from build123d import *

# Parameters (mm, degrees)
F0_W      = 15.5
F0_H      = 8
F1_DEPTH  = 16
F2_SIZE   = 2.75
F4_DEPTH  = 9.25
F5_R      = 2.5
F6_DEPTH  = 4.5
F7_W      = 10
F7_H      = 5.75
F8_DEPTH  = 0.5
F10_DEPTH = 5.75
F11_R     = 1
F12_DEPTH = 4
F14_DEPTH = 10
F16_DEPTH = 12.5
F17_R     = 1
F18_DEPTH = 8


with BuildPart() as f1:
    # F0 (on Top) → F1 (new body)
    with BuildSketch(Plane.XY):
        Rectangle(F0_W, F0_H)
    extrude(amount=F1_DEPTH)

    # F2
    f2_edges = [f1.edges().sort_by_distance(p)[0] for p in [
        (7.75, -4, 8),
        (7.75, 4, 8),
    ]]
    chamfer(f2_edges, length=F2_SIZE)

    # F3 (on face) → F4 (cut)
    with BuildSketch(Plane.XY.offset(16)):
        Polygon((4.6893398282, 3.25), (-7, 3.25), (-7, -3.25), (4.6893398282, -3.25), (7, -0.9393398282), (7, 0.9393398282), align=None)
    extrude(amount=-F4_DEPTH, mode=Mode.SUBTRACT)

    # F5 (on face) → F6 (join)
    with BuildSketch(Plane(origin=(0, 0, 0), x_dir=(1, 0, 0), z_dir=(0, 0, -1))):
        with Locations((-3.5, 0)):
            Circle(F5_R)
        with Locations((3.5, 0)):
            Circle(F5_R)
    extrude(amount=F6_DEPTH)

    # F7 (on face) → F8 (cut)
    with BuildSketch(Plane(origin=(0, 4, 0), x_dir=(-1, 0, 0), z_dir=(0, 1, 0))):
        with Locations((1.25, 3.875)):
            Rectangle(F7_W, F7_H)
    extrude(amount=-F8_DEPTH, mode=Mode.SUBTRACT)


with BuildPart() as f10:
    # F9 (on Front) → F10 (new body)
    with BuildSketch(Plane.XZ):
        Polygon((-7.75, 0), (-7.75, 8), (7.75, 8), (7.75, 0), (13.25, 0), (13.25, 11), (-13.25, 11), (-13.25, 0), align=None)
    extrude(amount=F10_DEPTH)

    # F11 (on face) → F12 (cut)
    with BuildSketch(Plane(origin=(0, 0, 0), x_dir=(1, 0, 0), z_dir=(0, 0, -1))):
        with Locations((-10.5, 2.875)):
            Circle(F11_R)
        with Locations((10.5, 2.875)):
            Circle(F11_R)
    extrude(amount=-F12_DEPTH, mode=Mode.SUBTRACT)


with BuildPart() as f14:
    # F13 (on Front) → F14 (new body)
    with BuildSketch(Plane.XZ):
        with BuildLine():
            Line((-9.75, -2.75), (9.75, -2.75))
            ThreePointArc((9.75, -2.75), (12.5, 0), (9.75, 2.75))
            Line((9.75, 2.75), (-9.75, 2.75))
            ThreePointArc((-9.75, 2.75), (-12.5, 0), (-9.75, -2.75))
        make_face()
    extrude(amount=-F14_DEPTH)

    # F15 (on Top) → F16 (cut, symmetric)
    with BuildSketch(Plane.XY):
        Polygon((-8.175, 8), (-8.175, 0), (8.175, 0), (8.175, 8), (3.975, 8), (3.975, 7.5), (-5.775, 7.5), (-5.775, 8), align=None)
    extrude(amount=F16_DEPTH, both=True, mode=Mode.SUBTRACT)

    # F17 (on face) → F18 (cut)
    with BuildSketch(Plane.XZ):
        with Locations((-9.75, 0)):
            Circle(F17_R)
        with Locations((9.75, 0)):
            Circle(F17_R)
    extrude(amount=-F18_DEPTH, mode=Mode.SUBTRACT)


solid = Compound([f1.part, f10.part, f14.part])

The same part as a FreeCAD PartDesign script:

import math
import FreeCAD as App
import Part
import Sketcher
Q = App.Units.Quantity


def edges_at(feature, points):
    """Names of the edges that pass closest to the given points."""
    edges = feature.Shape.Edges
    near = lambda p: min(range(len(edges)), key=lambda i: edges[i].distToShape(Part.Vertex(*p))[0])
    return sorted({f"Edge{near(p) + 1}" for p in points})

doc = App.newDocument("Part")
params = doc.addObject("Spreadsheet::Sheet", "Params")
for row, (alias, value) in enumerate([
    ("sketch1_height", "8 mm"),
    ("sketch1_width", "15.5 mm"),
    ("pad1_length", "16 mm"),
    ("chamfer_size", "2.75 mm"),
    ("sketch2_height", "6.5 mm"),
    ("pocket1_length", "9.25 mm"),
    ("sketch3_diameter", "5 mm"),
    ("pad2_length", "4.5 mm"),
    ("sketch4_width", "10 mm"),
    ("sketch4_height", "5.75 mm"),
    ("pocket2_length", "0.5 mm"),
    ("sketch5_height", "8 mm"),
    ("sketch5_height2", "11 mm"),
    ("sketch5_width", "15.5 mm"),
    ("sketch5_width2", "5.5 mm"),
    ("pad3_length", "5.75 mm"),
    ("sketch6_diameter", "2 mm"),
    ("pocket3_length", "4 mm"),
    ("sketch7_radius", "2.75 mm"),
    ("sketch7_width", "19.5 mm"),
    ("pad4_length", "10 mm"),
    ("sketch8_height", "8 mm"),
    ("sketch8_width", "4.2 mm"),
    ("sketch8_width2", "2.4 mm"),
    ("sketch8_height2", "0.5 mm"),
    ("sketch8_width3", "16.35 mm"),
    ("pocket4_length", "25 mm"),
    ("sketch9_diameter", "2 mm"),
    ("pocket5_length", "8 mm"),
], start=1):
    params.set(f"A{row}", alias)
    params.set(f"B{row}", "=" + value)
    params.setAlias(f"B{row}", alias)

body = doc.addObject("PartDesign::Body", "Body")

sketch1 = body.newObject("Sketcher::SketchObject", "Sketch")
sketch1.AttachmentSupport = (doc.getObject("XY_Plane"), [""])
sketch1.MapMode = "FlatFace"
sketch1.addGeometry(Part.LineSegment(App.Vector(-7.75, 4, 0), App.Vector(-7.75, -4, 0)), False)
sketch1.addGeometry(Part.LineSegment(App.Vector(-7.75, -4, 0), App.Vector(7.75, -4, 0)), False)
sketch1.addGeometry(Part.LineSegment(App.Vector(7.75, -4, 0), App.Vector(7.75, 4, 0)), False)
sketch1.addGeometry(Part.LineSegment(App.Vector(7.75, 4, 0), App.Vector(-7.75, 4, 0)), False)
sketch1.addConstraint(Sketcher.Constraint("Coincident", 0, 2, 1, 1))
sketch1.addConstraint(Sketcher.Constraint("Coincident", 1, 2, 2, 1))
sketch1.addConstraint(Sketcher.Constraint("Coincident", 2, 2, 3, 1))
sketch1.addConstraint(Sketcher.Constraint("Coincident", 3, 2, 0, 1))
sketch1.addConstraint(Sketcher.Constraint("Vertical", 0))
sketch1.addConstraint(Sketcher.Constraint("Horizontal", 1))
sketch1.addConstraint(Sketcher.Constraint("Vertical", 2))
sketch1.addConstraint(Sketcher.Constraint("Horizontal", 3))
sketch1.addConstraint(Sketcher.Constraint("Symmetric", 0, 2, 2, 2, -1, 1))
sketch1.addConstraint(Sketcher.Constraint("DistanceY", 0, 2, 0, 1, Q("8 mm")))
sketch1.addConstraint(Sketcher.Constraint("DistanceX", 1, 1, 1, 2, Q("15.5 mm")))
sketch1.setExpression("Constraints[9]", "Params.sketch1_height")
sketch1.setExpression("Constraints[10]", "Params.sketch1_width")
pad1 = body.newObject("PartDesign::Pad", "Pad")
pad1.Profile = sketch1
pad1.setExpression("Length", "Params.pad1_length")
doc.recompute()

chamfer = body.newObject("PartDesign::Chamfer", "Chamfer")
chamfer.Base = (pad1, edges_at(pad1, [(7.75, -4, 8), (7.75, 4, 8)]))
chamfer.setExpression("Size", "Params.chamfer_size")

sketch2 = body.newObject("Sketcher::SketchObject", "Sketch001")
sketch2.AttachmentSupport = (doc.getObject("XY_Plane"), [""])
sketch2.MapMode = "FlatFace"
sketch2.AttachmentOffset = App.Placement(App.Vector(0, 0, 16), App.Rotation())
sketch2.addGeometry(Part.LineSegment(App.Vector(4.68934, 3.25, 0), App.Vector(-7, 3.25, 0)), False)
sketch2.addGeometry(Part.LineSegment(App.Vector(-7, 3.25, 0), App.Vector(-7, -3.25, 0)), False)
sketch2.addGeometry(Part.LineSegment(App.Vector(-7, -3.25, 0), App.Vector(4.68934, -3.25, 0)), False)
sketch2.addGeometry(Part.LineSegment(App.Vector(4.68934, -3.25, 0), App.Vector(7, -0.93934, 0)), False)
sketch2.addGeometry(Part.LineSegment(App.Vector(7, -0.93934, 0), App.Vector(7, 0.93934, 0)), False)
sketch2.addGeometry(Part.LineSegment(App.Vector(7, 0.93934, 0), App.Vector(4.68934, 3.25, 0)), False)
sketch2.addConstraint(Sketcher.Constraint("Coincident", 0, 2, 1, 1))
sketch2.addConstraint(Sketcher.Constraint("Coincident", 1, 2, 2, 1))
sketch2.addConstraint(Sketcher.Constraint("Coincident", 2, 2, 3, 1))
sketch2.addConstraint(Sketcher.Constraint("Coincident", 3, 2, 4, 1))
sketch2.addConstraint(Sketcher.Constraint("Coincident", 4, 2, 5, 1))
sketch2.addConstraint(Sketcher.Constraint("Coincident", 5, 2, 0, 1))
sketch2.addConstraint(Sketcher.Constraint("Horizontal", 0))
sketch2.addConstraint(Sketcher.Constraint("Vertical", 1))
sketch2.addConstraint(Sketcher.Constraint("Horizontal", 2))
sketch2.addConstraint(Sketcher.Constraint("Vertical", 4))
sketch2.addConstraint(Sketcher.Constraint("Symmetric", 2, 2, 5, 2, -1))
sketch2.addConstraint(Sketcher.Constraint("Perpendicular", 3, 5))
sketch2.addConstraint(Sketcher.Constraint("Equal", 3, 5))
sketch2.addConstraint(Sketcher.Constraint("DistanceY", 1, 2, 1, 1, Q("6.5 mm")))
sketch2.addConstraint(Sketcher.Constraint("DistanceX", 0, 2, -1, 1, Q("7 mm")))
sketch2.addConstraint(Sketcher.Constraint("DistanceX", -1, 1, 3, 2, Q("7 mm")))
sketch2.addConstraint(Sketcher.Constraint("DistanceX", 0, 2, 0, 1, Q("11.68934 mm")))
sketch2.setExpression("Constraints[13]", "Params.sketch2_height")
pocket1 = body.newObject("PartDesign::Pocket", "Pocket")
pocket1.Profile = sketch2
pocket1.setExpression("Length", "Params.pocket1_length")

sketch3 = body.newObject("Sketcher::SketchObject", "Sketch002")
sketch3.AttachmentSupport = (doc.getObject("XY_Plane"), [""])
sketch3.MapMode = "FlatFace"
sketch3.addGeometry(Part.Circle(App.Vector(-3.5, 0, 0), App.Vector(0, 0, 1), 2.5), False)
sketch3.addGeometry(Part.Circle(App.Vector(3.5, 0, 0), App.Vector(0, 0, 1), 2.5), False)
sketch3.addConstraint(Sketcher.Constraint("Equal", 0, 1))
sketch3.addConstraint(Sketcher.Constraint("Symmetric", 0, 3, 1, 3, -1, 1))
sketch3.addConstraint(Sketcher.Constraint("PointOnObject", 0, 3, -1))
sketch3.addConstraint(Sketcher.Constraint("Diameter", 0, Q("5 mm")))
sketch3.addConstraint(Sketcher.Constraint("DistanceX", 0, 3, 1, 3, Q("7 mm")))
sketch3.setExpression("Constraints[3]", "Params.sketch3_diameter")
pad2 = body.newObject("PartDesign::Pad", "Pad001")
pad2.Profile = sketch3
pad2.setExpression("Length", "Params.pad2_length")
pad2.Reversed = True

sketch4 = body.newObject("Sketcher::SketchObject", "Sketch003")
sketch4.AttachmentSupport = (doc.getObject("XZ_Plane"), [""])
sketch4.MapMode = "FlatFace"
sketch4.AttachmentOffset = App.Placement(App.Vector(0, 0, -4), App.Rotation())
sketch4.addGeometry(Part.LineSegment(App.Vector(3.75, 6.75, 0), App.Vector(3.75, 1, 0)), False)
sketch4.addGeometry(Part.LineSegment(App.Vector(3.75, 1, 0), App.Vector(-6.25, 1, 0)), False)
sketch4.addGeometry(Part.LineSegment(App.Vector(-6.25, 1, 0), App.Vector(-6.25, 6.75, 0)), False)
sketch4.addGeometry(Part.LineSegment(App.Vector(-6.25, 6.75, 0), App.Vector(3.75, 6.75, 0)), False)
sketch4.addConstraint(Sketcher.Constraint("Coincident", 0, 2, 1, 1))
sketch4.addConstraint(Sketcher.Constraint("Coincident", 1, 2, 2, 1))
sketch4.addConstraint(Sketcher.Constraint("Coincident", 2, 2, 3, 1))
sketch4.addConstraint(Sketcher.Constraint("Coincident", 3, 2, 0, 1))
sketch4.addConstraint(Sketcher.Constraint("Vertical", 0))
sketch4.addConstraint(Sketcher.Constraint("Horizontal", 1))
sketch4.addConstraint(Sketcher.Constraint("Vertical", 2))
sketch4.addConstraint(Sketcher.Constraint("Horizontal", 3))
sketch4.addConstraint(Sketcher.Constraint("DistanceX", 1, 2, 1, 1, Q("10 mm")))
sketch4.addConstraint(Sketcher.Constraint("DistanceY", -1, 1, 0, 2, Q("1 mm")))
sketch4.addConstraint(Sketcher.Constraint("DistanceY", 0, 2, 0, 1, Q("5.75 mm")))
sketch4.addConstraint(Sketcher.Constraint("DistanceX", -1, 1, 0, 2, Q("3.75 mm")))
sketch4.setExpression("Constraints[8]", "Params.sketch4_width")
sketch4.setExpression("Constraints[10]", "Params.sketch4_height")
pocket2 = body.newObject("PartDesign::Pocket", "Pocket001")
pocket2.Profile = sketch4
pocket2.setExpression("Length", "Params.pocket2_length")
pocket2.Reversed = True
body2 = doc.addObject("PartDesign::Body", "Body001")

sketch5 = body2.newObject("Sketcher::SketchObject", "Sketch004")
sketch5.AttachmentSupport = (doc.getObject("XZ_Plane001"), [""])
sketch5.MapMode = "FlatFace"
sketch5.addGeometry(Part.LineSegment(App.Vector(-7.75, 0, 0), App.Vector(-7.75, 8, 0)), False)
sketch5.addGeometry(Part.LineSegment(App.Vector(-7.75, 8, 0), App.Vector(7.75, 8, 0)), False)
sketch5.addGeometry(Part.LineSegment(App.Vector(7.75, 8, 0), App.Vector(7.75, 0, 0)), False)
sketch5.addGeometry(Part.LineSegment(App.Vector(7.75, 0, 0), App.Vector(13.25, 0, 0)), False)
sketch5.addGeometry(Part.LineSegment(App.Vector(13.25, 0, 0), App.Vector(13.25, 11, 0)), False)
sketch5.addGeometry(Part.LineSegment(App.Vector(13.25, 11, 0), App.Vector(-13.25, 11, 0)), False)
sketch5.addGeometry(Part.LineSegment(App.Vector(-13.25, 11, 0), App.Vector(-13.25, 0, 0)), False)
sketch5.addGeometry(Part.LineSegment(App.Vector(-13.25, 0, 0), App.Vector(-7.75, 0, 0)), False)
sketch5.addConstraint(Sketcher.Constraint("Coincident", 0, 2, 1, 1))
sketch5.addConstraint(Sketcher.Constraint("Coincident", 1, 2, 2, 1))
sketch5.addConstraint(Sketcher.Constraint("Coincident", 2, 2, 3, 1))
sketch5.addConstraint(Sketcher.Constraint("Coincident", 3, 2, 4, 1))
sketch5.addConstraint(Sketcher.Constraint("Coincident", 4, 2, 5, 1))
sketch5.addConstraint(Sketcher.Constraint("Coincident", 5, 2, 6, 1))
sketch5.addConstraint(Sketcher.Constraint("Coincident", 6, 2, 7, 1))
sketch5.addConstraint(Sketcher.Constraint("Coincident", 7, 2, 0, 1))
sketch5.addConstraint(Sketcher.Constraint("Vertical", 0))
sketch5.addConstraint(Sketcher.Constraint("Horizontal", 1))
sketch5.addConstraint(Sketcher.Constraint("Vertical", 2))
sketch5.addConstraint(Sketcher.Constraint("Horizontal", 3))
sketch5.addConstraint(Sketcher.Constraint("Vertical", 4))
sketch5.addConstraint(Sketcher.Constraint("Horizontal", 5))
sketch5.addConstraint(Sketcher.Constraint("Vertical", 6))
sketch5.addConstraint(Sketcher.Constraint("Horizontal", 7))
sketch5.addConstraint(Sketcher.Constraint("Symmetric", 3, 2, 6, 2, -1, 1))
sketch5.addConstraint(Sketcher.Constraint("Symmetric", 2, 2, 7, 2, -2))
sketch5.addConstraint(Sketcher.Constraint("DistanceY", 0, 1, 0, 2, Q("8 mm")))
sketch5.addConstraint(Sketcher.Constraint("DistanceY", 4, 1, 4, 2, Q("11 mm")))
sketch5.addConstraint(Sketcher.Constraint("DistanceX", 1, 1, 1, 2, Q("15.5 mm")))
sketch5.addConstraint(Sketcher.Constraint("DistanceX", 3, 1, 3, 2, Q("5.5 mm")))
sketch5.setExpression("Constraints[18]", "Params.sketch5_height")
sketch5.setExpression("Constraints[19]", "Params.sketch5_height2")
sketch5.setExpression("Constraints[20]", "Params.sketch5_width")
sketch5.setExpression("Constraints[21]", "Params.sketch5_width2")
pad3 = body2.newObject("PartDesign::Pad", "Pad002")
pad3.Profile = sketch5
pad3.setExpression("Length", "Params.pad3_length")

sketch6 = body2.newObject("Sketcher::SketchObject", "Sketch005")
sketch6.AttachmentSupport = (doc.getObject("XY_Plane001"), [""])
sketch6.MapMode = "FlatFace"
sketch6.addGeometry(Part.Circle(App.Vector(-10.5, -2.875, 0), App.Vector(0, 0, 1), 1), False)
sketch6.addGeometry(Part.Circle(App.Vector(10.5, -2.875, 0), App.Vector(0, 0, 1), 1), False)
sketch6.addConstraint(Sketcher.Constraint("Equal", 0, 1))
sketch6.addConstraint(Sketcher.Constraint("Symmetric", 0, 3, 1, 3, -2))
sketch6.addConstraint(Sketcher.Constraint("Diameter", 0, Q("2 mm")))
sketch6.addConstraint(Sketcher.Constraint("DistanceX", 0, 3, 1, 3, Q("21 mm")))
sketch6.addConstraint(Sketcher.Constraint("DistanceY", 0, 3, -1, 1, Q("2.875 mm")))
sketch6.setExpression("Constraints[2]", "Params.sketch6_diameter")
pocket3 = body2.newObject("PartDesign::Pocket", "Pocket002")
pocket3.Profile = sketch6
pocket3.setExpression("Length", "Params.pocket3_length")
pocket3.Reversed = True
body3 = doc.addObject("PartDesign::Body", "Body002")

sketch7 = body3.newObject("Sketcher::SketchObject", "Sketch006")
sketch7.AttachmentSupport = (doc.getObject("XZ_Plane002"), [""])
sketch7.MapMode = "FlatFace"
sketch7.addGeometry(Part.LineSegment(App.Vector(-9.75, -2.75, 0), App.Vector(9.75, -2.75, 0)), False)
sketch7.addGeometry(Part.ArcOfCircle(Part.Circle(App.Vector(9.75, 0, 0), App.Vector(0, 0, 1), 2.75), math.radians(-90), math.radians(90)), False)
sketch7.addGeometry(Part.LineSegment(App.Vector(9.75, 2.75, 0), App.Vector(-9.75, 2.75, 0)), False)
sketch7.addGeometry(Part.ArcOfCircle(Part.Circle(App.Vector(-9.75, 0, 0), App.Vector(0, 0, 1), 2.75), math.radians(90), math.radians(270)), False)
sketch7.addConstraint(Sketcher.Constraint("Tangent", 0, 2, 1, 1))
sketch7.addConstraint(Sketcher.Constraint("Tangent", 1, 2, 2, 1))
sketch7.addConstraint(Sketcher.Constraint("Tangent", 2, 2, 3, 1))
sketch7.addConstraint(Sketcher.Constraint("Tangent", 3, 2, 0, 1))
sketch7.addConstraint(Sketcher.Constraint("Horizontal", 0))
sketch7.addConstraint(Sketcher.Constraint("Horizontal", 2))
sketch7.addConstraint(Sketcher.Constraint("Symmetric", 1, 3, 3, 3, -1, 1))
sketch7.addConstraint(Sketcher.Constraint("Radius", 1, Q("2.75 mm")))
sketch7.addConstraint(Sketcher.Constraint("DistanceX", 0, 1, 0, 2, Q("19.5 mm")))
sketch7.setExpression("Constraints[7]", "Params.sketch7_radius")
sketch7.setExpression("Constraints[8]", "Params.sketch7_width")
pad4 = body3.newObject("PartDesign::Pad", "Pad003")
pad4.Profile = sketch7
pad4.setExpression("Length", "Params.pad4_length")
pad4.Reversed = True

sketch8 = body3.newObject("Sketcher::SketchObject", "Sketch007")
sketch8.AttachmentSupport = (doc.getObject("XY_Plane002"), [""])
sketch8.MapMode = "FlatFace"
sketch8.addGeometry(Part.LineSegment(App.Vector(-8.175, 8, 0), App.Vector(-8.175, 0, 0)), False)
sketch8.addGeometry(Part.LineSegment(App.Vector(-8.175, 0, 0), App.Vector(8.175, 0, 0)), False)
sketch8.addGeometry(Part.LineSegment(App.Vector(8.175, 0, 0), App.Vector(8.175, 8, 0)), False)
sketch8.addGeometry(Part.LineSegment(App.Vector(8.175, 8, 0), App.Vector(3.975, 8, 0)), False)
sketch8.addGeometry(Part.LineSegment(App.Vector(3.975, 8, 0), App.Vector(3.975, 7.5, 0)), False)
sketch8.addGeometry(Part.LineSegment(App.Vector(3.975, 7.5, 0), App.Vector(-5.775, 7.5, 0)), False)
sketch8.addGeometry(Part.LineSegment(App.Vector(-5.775, 7.5, 0), App.Vector(-5.775, 8, 0)), False)
sketch8.addGeometry(Part.LineSegment(App.Vector(-5.775, 8, 0), App.Vector(-8.175, 8, 0)), False)
sketch8.addConstraint(Sketcher.Constraint("Coincident", 0, 2, 1, 1))
sketch8.addConstraint(Sketcher.Constraint("Coincident", 1, 2, 2, 1))
sketch8.addConstraint(Sketcher.Constraint("Coincident", 2, 2, 3, 1))
sketch8.addConstraint(Sketcher.Constraint("Coincident", 3, 2, 4, 1))
sketch8.addConstraint(Sketcher.Constraint("Coincident", 4, 2, 5, 1))
sketch8.addConstraint(Sketcher.Constraint("Coincident", 5, 2, 6, 1))
sketch8.addConstraint(Sketcher.Constraint("Coincident", 6, 2, 7, 1))
sketch8.addConstraint(Sketcher.Constraint("Coincident", 7, 2, 0, 1))
sketch8.addConstraint(Sketcher.Constraint("Vertical", 0))
sketch8.addConstraint(Sketcher.Constraint("Horizontal", 1))
sketch8.addConstraint(Sketcher.Constraint("Vertical", 2))
sketch8.addConstraint(Sketcher.Constraint("Horizontal", 3))
sketch8.addConstraint(Sketcher.Constraint("Vertical", 4))
sketch8.addConstraint(Sketcher.Constraint("Horizontal", 5))
sketch8.addConstraint(Sketcher.Constraint("Vertical", 6))
sketch8.addConstraint(Sketcher.Constraint("Horizontal", 7))
sketch8.addConstraint(Sketcher.Constraint("Symmetric", 0, 2, 1, 2, -1, 1))
sketch8.addConstraint(Sketcher.Constraint("Horizontal", 3, 2, 6, 2))
sketch8.addConstraint(Sketcher.Constraint("DistanceY", 0, 2, 0, 1, Q("8 mm")))
sketch8.addConstraint(Sketcher.Constraint("DistanceX", 3, 2, 3, 1, Q("4.2 mm")))
sketch8.addConstraint(Sketcher.Constraint("DistanceX", 7, 2, 7, 1, Q("2.4 mm")))
sketch8.addConstraint(Sketcher.Constraint("DistanceY", 4, 2, 4, 1, Q("0.5 mm")))
sketch8.addConstraint(Sketcher.Constraint("DistanceX", 1, 1, 1, 2, Q("16.35 mm")))
sketch8.setExpression("Constraints[18]", "Params.sketch8_height")
sketch8.setExpression("Constraints[19]", "Params.sketch8_width")
sketch8.setExpression("Constraints[20]", "Params.sketch8_width2")
sketch8.setExpression("Constraints[21]", "Params.sketch8_height2")
sketch8.setExpression("Constraints[22]", "Params.sketch8_width3")
pocket4 = body3.newObject("PartDesign::Pocket", "Pocket003")
pocket4.Profile = sketch8
pocket4.setExpression("Length", "Params.pocket4_length")
pocket4.Midplane = True

sketch9 = body3.newObject("Sketcher::SketchObject", "Sketch008")
sketch9.AttachmentSupport = (doc.getObject("XZ_Plane002"), [""])
sketch9.MapMode = "FlatFace"
sketch9.addGeometry(Part.Circle(App.Vector(-9.75, 0, 0), App.Vector(0, 0, 1), 1), False)
sketch9.addGeometry(Part.Circle(App.Vector(9.75, 0, 0), App.Vector(0, 0, 1), 1), False)
sketch9.addConstraint(Sketcher.Constraint("Equal", 0, 1))
sketch9.addConstraint(Sketcher.Constraint("Symmetric", 0, 3, 1, 3, -1, 1))
sketch9.addConstraint(Sketcher.Constraint("PointOnObject", 0, 3, -1))
sketch9.addConstraint(Sketcher.Constraint("Diameter", 0, Q("2 mm")))
sketch9.addConstraint(Sketcher.Constraint("DistanceX", 0, 3, 1, 3, Q("19.5 mm")))
sketch9.setExpression("Constraints[3]", "Params.sketch9_diameter")
pocket5 = body3.newObject("PartDesign::Pocket", "Pocket004")
pocket5.Profile = sketch9
pocket5.setExpression("Length", "Params.pocket5_length")

doc.recompute()
